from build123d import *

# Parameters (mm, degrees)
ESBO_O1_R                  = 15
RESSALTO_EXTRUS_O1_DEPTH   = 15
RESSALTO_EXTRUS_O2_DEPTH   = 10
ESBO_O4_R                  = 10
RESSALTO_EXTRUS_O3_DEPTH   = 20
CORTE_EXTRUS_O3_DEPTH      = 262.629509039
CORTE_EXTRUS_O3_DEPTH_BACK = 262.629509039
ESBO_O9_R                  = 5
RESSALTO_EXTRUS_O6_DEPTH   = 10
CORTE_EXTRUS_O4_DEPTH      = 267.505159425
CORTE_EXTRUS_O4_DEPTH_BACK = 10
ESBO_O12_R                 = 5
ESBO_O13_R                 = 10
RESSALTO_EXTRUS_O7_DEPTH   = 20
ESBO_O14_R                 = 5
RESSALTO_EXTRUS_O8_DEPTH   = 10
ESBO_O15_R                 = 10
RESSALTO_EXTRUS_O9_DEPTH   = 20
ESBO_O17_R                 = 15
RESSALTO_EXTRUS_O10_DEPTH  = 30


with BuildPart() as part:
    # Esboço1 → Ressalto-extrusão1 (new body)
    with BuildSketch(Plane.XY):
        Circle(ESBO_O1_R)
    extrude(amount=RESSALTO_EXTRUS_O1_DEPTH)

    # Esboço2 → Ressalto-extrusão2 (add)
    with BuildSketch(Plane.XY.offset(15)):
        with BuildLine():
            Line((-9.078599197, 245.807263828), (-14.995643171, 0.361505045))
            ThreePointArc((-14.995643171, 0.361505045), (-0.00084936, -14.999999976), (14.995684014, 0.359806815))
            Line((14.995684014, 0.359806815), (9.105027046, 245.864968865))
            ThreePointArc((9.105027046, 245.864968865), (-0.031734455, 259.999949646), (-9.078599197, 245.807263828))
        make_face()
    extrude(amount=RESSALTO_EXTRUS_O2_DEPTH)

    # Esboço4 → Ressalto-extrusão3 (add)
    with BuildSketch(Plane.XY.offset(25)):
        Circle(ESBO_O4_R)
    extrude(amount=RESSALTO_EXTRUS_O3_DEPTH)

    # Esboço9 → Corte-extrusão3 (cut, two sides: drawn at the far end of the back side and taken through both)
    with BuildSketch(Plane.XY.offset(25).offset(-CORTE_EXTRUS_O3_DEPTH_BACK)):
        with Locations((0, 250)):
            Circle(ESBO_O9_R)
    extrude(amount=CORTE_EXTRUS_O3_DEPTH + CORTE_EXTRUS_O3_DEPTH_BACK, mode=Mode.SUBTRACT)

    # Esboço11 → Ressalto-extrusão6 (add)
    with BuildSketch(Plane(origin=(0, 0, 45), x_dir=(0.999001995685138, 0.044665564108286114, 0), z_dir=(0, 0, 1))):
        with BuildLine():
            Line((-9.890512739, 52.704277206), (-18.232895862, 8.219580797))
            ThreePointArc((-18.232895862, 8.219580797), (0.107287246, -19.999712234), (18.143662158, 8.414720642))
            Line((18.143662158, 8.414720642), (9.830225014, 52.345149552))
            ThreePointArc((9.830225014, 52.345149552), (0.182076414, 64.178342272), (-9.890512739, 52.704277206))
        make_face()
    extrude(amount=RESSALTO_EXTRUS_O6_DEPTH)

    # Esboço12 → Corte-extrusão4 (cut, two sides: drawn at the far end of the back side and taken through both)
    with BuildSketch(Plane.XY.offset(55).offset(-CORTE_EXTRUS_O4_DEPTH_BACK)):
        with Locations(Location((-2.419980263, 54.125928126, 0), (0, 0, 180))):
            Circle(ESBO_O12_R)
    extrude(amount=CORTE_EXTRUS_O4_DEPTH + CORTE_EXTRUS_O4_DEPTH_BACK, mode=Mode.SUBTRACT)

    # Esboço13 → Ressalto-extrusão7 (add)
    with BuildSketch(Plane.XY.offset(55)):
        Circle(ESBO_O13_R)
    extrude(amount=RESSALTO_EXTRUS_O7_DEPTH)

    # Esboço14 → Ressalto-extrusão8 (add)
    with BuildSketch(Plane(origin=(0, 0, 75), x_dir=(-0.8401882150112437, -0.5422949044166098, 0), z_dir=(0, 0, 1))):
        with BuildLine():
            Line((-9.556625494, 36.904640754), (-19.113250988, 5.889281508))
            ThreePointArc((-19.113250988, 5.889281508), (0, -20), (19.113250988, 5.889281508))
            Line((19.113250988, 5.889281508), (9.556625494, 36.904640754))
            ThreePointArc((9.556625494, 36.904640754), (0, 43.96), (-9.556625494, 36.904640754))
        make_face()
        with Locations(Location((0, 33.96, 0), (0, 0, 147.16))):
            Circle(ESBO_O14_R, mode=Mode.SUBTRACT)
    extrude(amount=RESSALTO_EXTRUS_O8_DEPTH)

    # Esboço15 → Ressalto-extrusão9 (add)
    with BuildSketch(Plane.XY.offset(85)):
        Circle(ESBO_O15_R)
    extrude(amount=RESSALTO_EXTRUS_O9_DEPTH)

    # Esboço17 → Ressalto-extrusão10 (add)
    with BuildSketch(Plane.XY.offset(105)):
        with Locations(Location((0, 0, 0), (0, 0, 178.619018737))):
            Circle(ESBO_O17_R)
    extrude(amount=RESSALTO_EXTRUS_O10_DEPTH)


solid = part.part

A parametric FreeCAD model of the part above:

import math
import FreeCAD as App
import Part
import Sketcher
Q = App.Units.Quantity

doc = App.newDocument("Part")
body = doc.addObject("PartDesign::Body", "Body")

# Sketch on XY plane
sketch1 = body.newObject("Sketcher::SketchObject", "Sketch")
sketch1.AttachmentSupport = (doc.getObject("XY_Plane"), [""])
sketch1.MapMode = "FlatFace"
sketch1.addGeometry(Part.Circle(App.Vector(0, 0, 0), App.Vector(0, 0, 1), 15), False)
sketch1.addConstraint([
    Sketcher.Constraint("Coincident", 0, 3, -1, 1),
    Sketcher.Constraint("Diameter", 0, Q("30 mm")),
])
pad1 = body.newObject("PartDesign::Pad", "Pad")
pad1.Profile = sketch1
pad1.Length = 15

# Sketch on XY plane
sketch2 = body.newObject("Sketcher::SketchObject", "Sketch001")
sketch2.AttachmentSupport = (doc.getObject("XY_Plane"), [""])
sketch2.MapMode = "FlatFace"
sketch2.AttachmentOffset = App.Placement(App.Vector(0, 0, 15), App.Rotation())
sketch2.addGeometry([
    Part.LineSegment(App.Vector(-9, 246, 0), App.Vector(-15, 0, 0)),
    Part.ArcOfCircle(Part.Circle(App.Vector(0, 0, 0), App.Vector(0, 0, 1), 15), math.radians(179), math.radians(361)),
    Part.LineSegment(App.Vector(15, 0, 0), App.Vector(9, 246, 0)),
    Part.ArcOfCircle(Part.Circle(App.Vector(0, 250, 0), App.Vector(0, 0, 1), 10), math.radians(-24), math.radians(205)),
], False)
sketch2.addConstraint([
    Sketcher.Constraint("Tangent", 0, 2, 1, 1),
    Sketcher.Constraint("Tangent", 1, 2, 2, 1),
    Sketcher.Constraint("Coincident", 2, 2, 3, 1),
    Sketcher.Constraint("Coincident", 3, 2, 0, 1),
    Sketcher.Constraint("Coincident", 1, 3, -1, 1),
    Sketcher.Constraint("PointOnObject", 3, 3, -2),
    Sketcher.Constraint("Radius", 1, Q("15 mm")),
    Sketcher.Constraint("Radius", 3, Q("10 mm")),
    Sketcher.Constraint("DistanceY", -1, 1, 3, 3, Q("250 mm")),
    Sketcher.Constraint("DistanceX", 3, 2, -1, 1, Q("9.078599 mm")),
    Sketcher.Constraint("DistanceY", -1, 1, 2, 2, Q("245.864969 mm")),
])
pad2 = body.newObject("PartDesign::Pad", "Pad001")
pad2.Profile = sketch2
pad2.Length = 10

# Sketch on XY plane
sketch3 = body.newObject("Sketcher::SketchObject", "Sketch002")
sketch3.AttachmentSupport = (doc.getObject("XY_Plane"), [""])
sketch3.MapMode = "FlatFace"
sketch3.AttachmentOffset = App.Placement(App.Vector(0, 0, 25), App.Rotation())
sketch3.addGeometry(Part.Circle(App.Vector(0, 0, 0), App.Vector(0, 0, 1), 10), False)
sketch3.addConstraint([
    Sketcher.Constraint("Coincident", 0, 3, -1, 1),
    Sketcher.Constraint("Diameter", 0, Q("20 mm")),
])
pad3 = body.newObject("PartDesign::Pad", "Pad002")
pad3.Profile = sketch3
pad3.Length = 20

# Sketch on XY plane
sketch4 = body.newObject("Sketcher::SketchObject", "Sketch003")
sketch4.AttachmentSupport = (doc.getObject("XY_Plane"), [""])
sketch4.MapMode = "FlatFace"
sketch4.AttachmentOffset = App.Placement(App.Vector(0, 0, 25), App.Rotation())
sketch4.addGeometry(Part.Circle(App.Vector(0, 250, 0), App.Vector(0, 0, 1), 5), False)
sketch4.addConstraint([
    Sketcher.Constraint("PointOnObject", 0, 3, -2),
    Sketcher.Constraint("Diameter", 0, Q("10 mm")),
    Sketcher.Constraint("DistanceY", -1, 1, 0, 3, Q("250 mm")),
])
pocket1 = body.newObject("PartDesign::Pocket", "Pocket")
pocket1.Profile = sketch4
pocket1.Type = "ThroughAll"
pocket1.Midplane = True

# Sketch on XY plane
sketch5 = body.newObject("Sketcher::SketchObject", "Sketch004")
sketch5.AttachmentSupport = (doc.getObject("XY_Plane"), [""])
sketch5.MapMode = "FlatFace"
sketch5.AttachmentOffset = App.Placement(App.Vector(0, 0, 45), App.Rotation())
sketch5.addGeometry([
    Part.LineSegment(App.Vector(-12, 52, 0), App.Vector(-19, 7, 0)),
    Part.ArcOfCircle(Part.Circle(App.Vector(0, 0, 0), App.Vector(0, 0, 1), 20), math.radians(158), math.radians(387)),
    Part.LineSegment(App.Vector(18, 9, 0), App.Vector(7, 53, 0)),
    Part.ArcOfCircle(Part.Circle(App.Vector(-2, 54, 0), App.Vector(0, 0, 1), 10), math.radians(-8), math.radians(191)),
], False)
sketch5.addConstraint([
    Sketcher.Constraint("Coincident", 0, 2, 1, 1),
    Sketcher.Constraint("Coincident", 1, 2, 2, 1),
    Sketcher.Constraint("Coincident", 2, 2, 3, 1),
    Sketcher.Constraint("Coincident", 3, 2, 0, 1),
    Sketcher.Constraint("Coincident", 1, 3, -1, 1),
    Sketcher.Constraint("Radius", 1, Q("20 mm")),
    Sketcher.Constraint("Radius", 3, Q("10 mm")),
    Sketcher.Constraint("Distance", 2, Q("44.710131 mm")),
    Sketcher.Constraint("DistanceX", 3, 3, -1, 1, Q("2.41998 mm")),
    Sketcher.Constraint("DistanceY", -1, 1, 3, 3, Q("54.125928 mm")),
    Sketcher.Constraint("DistanceX", 0, 2, -1, 1, Q("18.581832 mm")),
    Sketcher.Constraint("DistanceY", -1, 1, 1, 2, Q("9.21672 mm")),
    Sketcher.Constraint("DistanceX", 3, 2, -1, 1, Q("12.234708 mm")),
])
pad4 = body.newObject("PartDesign::Pad", "Pad003")
pad4.Profile = sketch5
pad4.Length = 10

# Sketch on XY plane
sketch6 = body.newObject("Sketcher::SketchObject", "Sketch005")
sketch6.AttachmentSupport = (doc.getObject("XY_Plane"), [""])
sketch6.MapMode = "FlatFace"
sketch6.AttachmentOffset = App.Placement(App.Vector(0, 0, 55), App.Rotation())
sketch6.addGeometry(Part.Circle(App.Vector(-2, 54, 0), App.Vector(0, 0, 1), 5), False)
sketch6.addConstraint([
    Sketcher.Constraint("Diameter", 0, Q("10 mm")),
    Sketcher.Constraint("DistanceX", 0, 3, -1, 1, Q("2.41998 mm")),
    Sketcher.Constraint("DistanceY", -1, 1, 0, 3, Q("54.125928 mm")),
])
pocket2 = body.newObject("PartDesign::Pocket", "Pocket001")
pocket2.Profile = sketch6
pocket2.Type = "TwoLengths"
pocket2.Length = 267.505159
pocket2.Length2 = 10
pocket2.Reversed = True

# Sketch on XY plane
sketch7 = body.newObject("Sketcher::SketchObject", "Sketch006")
sketch7.AttachmentSupport = (doc.getObject("XY_Plane"), [""])
sketch7.MapMode = "FlatFace"
sketch7.AttachmentOffset = App.Placement(App.Vector(0, 0, 55), App.Rotation())
sketch7.addGeometry(Part.Circle(App.Vector(0, 0, 0), App.Vector(0, 0, 1), 10), False)
sketch7.addConstraint([
    Sketcher.Constraint("Coincident", 0, 3, -1, 1),
    Sketcher.Constraint("Diameter", 0, Q("20 mm")),
])
pad5 = body.newObject("PartDesign::Pad", "Pad004")
pad5.Profile = sketch7
pad5.Length = 20

# Sketch on XY plane
sketch8 = body.newObject("Sketcher::SketchObject", "Sketch007")
sketch8.AttachmentSupport = (doc.getObject("XY_Plane"), [""])
sketch8.MapMode = "FlatFace"
sketch8.AttachmentOffset = App.Placement(App.Vector(0, 0, 75), App.Rotation())
sketch8.addGeometry([
    Part.LineSegment(App.Vector(28, -26, 0), App.Vector(19, 5, 0)),  # 0
    Part.ArcOfCircle(Part.Circle(App.Vector(0, 0, 0), App.Vector(0, 0, 1), 20), math.radians(16), math.radians(230)),  # 1
    Part.LineSegment(App.Vector(-13, -15, 0), App.Vector(12, -36, 0)),  # 2
    Part.ArcOfCircle(Part.Circle(App.Vector(18, -29, 0), App.Vector(0, 0, 1), 10), math.radians(-130), math.radians(16)),  # 3
    Part.Circle(App.Vector(18, -29, 0), App.Vector(0, 0, 1), 5),  # 4
], False)
sketch8.addConstraint([
    Sketcher.Constraint("Tangent", 0, 2, 1, 1),
    Sketcher.Constraint("Tangent", 1, 2, 2, 1),
    Sketcher.Constraint("Tangent", 2, 2, 3, 1),
    Sketcher.Constraint("Tangent", 3, 2, 0, 1),
    Sketcher.Constraint("Coincident", 1, 3, -1, 1),
    Sketcher.Constraint("Coincident", 4, 3, 3, 3),
    Sketcher.Constraint("Diameter", 4, Q("10 mm")),
    Sketcher.Constraint("Radius", 1, Q("20 mm")),
    Sketcher.Constraint("Radius", 3, Q("10 mm")),
    Sketcher.Constraint("DistanceX", 1, 2, -1, 1, Q("12.865001 mm")),
    Sketcher.Constraint("Distance", 0, Q("32.4543 mm")),
])
pad6 = body.newObject("PartDesign::Pad", "Pad005")
pad6.Profile = sketch8
pad6.Length = 10

# Sketch on XY plane
sketch9 = body.newObject("Sketcher::SketchObject", "Sketch008")
sketch9.AttachmentSupport = (doc.getObject("XY_Plane"), [""])
sketch9.MapMode = "FlatFace"
sketch9.AttachmentOffset = App.Placement(App.Vector(0, 0, 85), App.Rotation())
sketch9.addGeometry(Part.Circle(App.Vector(0, 0, 0), App.Vector(0, 0, 1), 10), False)
sketch9.addConstraint([
    Sketcher.Constraint("Coincident", 0, 3, -1, 1),
    Sketcher.Constraint("Diameter", 0, Q("20 mm")),
])
pad7 = body.newObject("PartDesign::Pad", "Pad006")
pad7.Profile = sketch9
pad7.Length = 20

# Sketch on XY plane
sketch10 = body.newObject("Sketcher::SketchObject", "Sketch009")
sketch10.AttachmentSupport = (doc.getObject("XY_Plane"), [""])
sketch10.MapMode = "FlatFace"
sketch10.AttachmentOffset = App.Placement(App.Vector(0, 0, 105), App.Rotation())
sketch10.addGeometry(Part.Circle(App.Vector(0, 0, 0), App.Vector(0, 0, 1), 15), False)
sketch10.addConstraint([
    Sketcher.Constraint("Coincident", 0, 3, -1, 1),
    Sketcher.Constraint("Diameter", 0, Q("30 mm")),
])
pad8 = body.newObject("PartDesign::Pad", "Pad007")
pad8.Profile = sketch10
pad8.Length = 30

doc.recompute()
